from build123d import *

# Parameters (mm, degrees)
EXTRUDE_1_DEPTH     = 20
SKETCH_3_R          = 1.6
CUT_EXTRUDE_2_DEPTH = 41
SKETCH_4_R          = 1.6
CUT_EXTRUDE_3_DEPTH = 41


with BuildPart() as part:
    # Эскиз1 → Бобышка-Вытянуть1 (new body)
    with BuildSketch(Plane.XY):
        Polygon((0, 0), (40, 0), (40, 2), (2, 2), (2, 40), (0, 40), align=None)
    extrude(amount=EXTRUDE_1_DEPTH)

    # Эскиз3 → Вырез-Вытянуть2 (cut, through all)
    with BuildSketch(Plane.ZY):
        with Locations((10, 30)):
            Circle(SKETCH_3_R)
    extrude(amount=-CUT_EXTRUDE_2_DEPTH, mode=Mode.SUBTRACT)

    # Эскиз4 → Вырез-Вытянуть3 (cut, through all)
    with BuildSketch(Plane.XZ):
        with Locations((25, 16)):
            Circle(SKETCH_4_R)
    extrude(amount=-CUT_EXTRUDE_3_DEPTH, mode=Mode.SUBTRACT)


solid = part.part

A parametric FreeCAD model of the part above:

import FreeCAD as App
import Part
import Sketcher

V = App.Vector
Q = App.Units.Quantity

doc = App.newDocument("Part")
body = doc.addObject("PartDesign::Body", "Body")

# Sketch on XY plane
sketch1 = body.newObject("Sketcher::SketchObject", "Sketch")
sketch1.AttachmentSupport = (doc.getObject("XY_Plane"), [""])
sketch1.MapMode = "FlatFace"
sketch1.addGeometry([
    Part.LineSegment(V(0, 0, 0), V(40, 0, 0)),  # 0
    Part.LineSegment(V(40, 0, 0), V(40, 2, 0)),  # 1
    Part.LineSegment(V(40, 2, 0), V(2, 2, 0)),  # 2
    Part.LineSegment(V(2, 2, 0), V(2, 40, 0)),  # 3
    Part.LineSegment(V(2, 40, 0), V(0, 40, 0)),  # 4
    Part.LineSegment(V(0, 40, 0), V(0, 0, 0)),  # 5
], False)
sketch1.addConstraint([
    Sketcher.Constraint("Coincident", 0, 2, 1, 1),
    Sketcher.Constraint("Coincident", 1, 2, 2, 1),
    Sketcher.Constraint("Coincident", 2, 2, 3, 1),
    Sketcher.Constraint("Coincident", 3, 2, 4, 1),
    Sketcher.Constraint("Coincident", 4, 2, 5, 1),
    Sketcher.Constraint("Coincident", 5, 2, 0, 1),
    Sketcher.Constraint("Horizontal", 0),
    Sketcher.Constraint("Vertical", 1),
    Sketcher.Constraint("Horizontal", 2),
    Sketcher.Constraint("Vertical", 3),
    Sketcher.Constraint("Horizontal", 4),
    Sketcher.Constraint("Vertical", 5),
    Sketcher.Constraint("Coincident", 5, 2, -1, 1),
    Sketcher.Constraint("Equal", 4, 1),
    Sketcher.Constraint("Equal", 2, 3),
    Sketcher.Constraint("DistanceX", 0, 1, 0, 2, Q("40 mm")),
    Sketcher.Constraint("DistanceX", 2, 2, 2, 1, Q("38 mm")),
])
pad1 = body.newObject("PartDesign::Pad", "Pad")
pad1.Profile = sketch1
pad1.Length = 20

# Sketch on YZ plane
sketch2 = body.newObject("Sketcher::SketchObject", "Sketch001")
sketch2.AttachmentSupport = (doc.getObject("YZ_Plane"), [""])
sketch2.MapMode = "FlatFace"
sketch2.addGeometry(Part.Circle(V(30, 10, 0), V(0, 0, 1), 1.6), False)
sketch2.addConstraint([
    Sketcher.Constraint("Diameter", 0, Q("3.2 mm")),
    Sketcher.Constraint("DistanceX", -1, 1, 0, 3, Q("30 mm")),
    Sketcher.Constraint("DistanceY", -1, 1, 0, 3, Q("10 mm")),
])
pocket1 = body.newObject("PartDesign::Pocket", "Pocket")
pocket1.Profile = sketch2
pocket1.Type = "ThroughAll"
pocket1.Reversed = True

# Sketch on XZ plane
sketch3 = body.newObject("Sketcher::SketchObject", "Sketch002")
sketch3.AttachmentSupport = (doc.getObject("XZ_Plane"), [""])
sketch3.MapMode = "FlatFace"
sketch3.addGeometry(Part.Circle(V(25, 16, 0), V(0, 0, 1), 1.6), False)
sketch3.addConstraint([
    Sketcher.Constraint("Diameter", 0, Q("3.2 mm")),
    Sketcher.Constraint("DistanceX", -1, 1, 0, 3, Q("25 mm")),
    Sketcher.Constraint("DistanceY", -1, 1, 0, 3, Q("16 mm")),
])
pocket2 = body.newObject("PartDesign::Pocket", "Pocket001")
pocket2.Profile = sketch3
pocket2.Type = "ThroughAll"

doc.recompute()
